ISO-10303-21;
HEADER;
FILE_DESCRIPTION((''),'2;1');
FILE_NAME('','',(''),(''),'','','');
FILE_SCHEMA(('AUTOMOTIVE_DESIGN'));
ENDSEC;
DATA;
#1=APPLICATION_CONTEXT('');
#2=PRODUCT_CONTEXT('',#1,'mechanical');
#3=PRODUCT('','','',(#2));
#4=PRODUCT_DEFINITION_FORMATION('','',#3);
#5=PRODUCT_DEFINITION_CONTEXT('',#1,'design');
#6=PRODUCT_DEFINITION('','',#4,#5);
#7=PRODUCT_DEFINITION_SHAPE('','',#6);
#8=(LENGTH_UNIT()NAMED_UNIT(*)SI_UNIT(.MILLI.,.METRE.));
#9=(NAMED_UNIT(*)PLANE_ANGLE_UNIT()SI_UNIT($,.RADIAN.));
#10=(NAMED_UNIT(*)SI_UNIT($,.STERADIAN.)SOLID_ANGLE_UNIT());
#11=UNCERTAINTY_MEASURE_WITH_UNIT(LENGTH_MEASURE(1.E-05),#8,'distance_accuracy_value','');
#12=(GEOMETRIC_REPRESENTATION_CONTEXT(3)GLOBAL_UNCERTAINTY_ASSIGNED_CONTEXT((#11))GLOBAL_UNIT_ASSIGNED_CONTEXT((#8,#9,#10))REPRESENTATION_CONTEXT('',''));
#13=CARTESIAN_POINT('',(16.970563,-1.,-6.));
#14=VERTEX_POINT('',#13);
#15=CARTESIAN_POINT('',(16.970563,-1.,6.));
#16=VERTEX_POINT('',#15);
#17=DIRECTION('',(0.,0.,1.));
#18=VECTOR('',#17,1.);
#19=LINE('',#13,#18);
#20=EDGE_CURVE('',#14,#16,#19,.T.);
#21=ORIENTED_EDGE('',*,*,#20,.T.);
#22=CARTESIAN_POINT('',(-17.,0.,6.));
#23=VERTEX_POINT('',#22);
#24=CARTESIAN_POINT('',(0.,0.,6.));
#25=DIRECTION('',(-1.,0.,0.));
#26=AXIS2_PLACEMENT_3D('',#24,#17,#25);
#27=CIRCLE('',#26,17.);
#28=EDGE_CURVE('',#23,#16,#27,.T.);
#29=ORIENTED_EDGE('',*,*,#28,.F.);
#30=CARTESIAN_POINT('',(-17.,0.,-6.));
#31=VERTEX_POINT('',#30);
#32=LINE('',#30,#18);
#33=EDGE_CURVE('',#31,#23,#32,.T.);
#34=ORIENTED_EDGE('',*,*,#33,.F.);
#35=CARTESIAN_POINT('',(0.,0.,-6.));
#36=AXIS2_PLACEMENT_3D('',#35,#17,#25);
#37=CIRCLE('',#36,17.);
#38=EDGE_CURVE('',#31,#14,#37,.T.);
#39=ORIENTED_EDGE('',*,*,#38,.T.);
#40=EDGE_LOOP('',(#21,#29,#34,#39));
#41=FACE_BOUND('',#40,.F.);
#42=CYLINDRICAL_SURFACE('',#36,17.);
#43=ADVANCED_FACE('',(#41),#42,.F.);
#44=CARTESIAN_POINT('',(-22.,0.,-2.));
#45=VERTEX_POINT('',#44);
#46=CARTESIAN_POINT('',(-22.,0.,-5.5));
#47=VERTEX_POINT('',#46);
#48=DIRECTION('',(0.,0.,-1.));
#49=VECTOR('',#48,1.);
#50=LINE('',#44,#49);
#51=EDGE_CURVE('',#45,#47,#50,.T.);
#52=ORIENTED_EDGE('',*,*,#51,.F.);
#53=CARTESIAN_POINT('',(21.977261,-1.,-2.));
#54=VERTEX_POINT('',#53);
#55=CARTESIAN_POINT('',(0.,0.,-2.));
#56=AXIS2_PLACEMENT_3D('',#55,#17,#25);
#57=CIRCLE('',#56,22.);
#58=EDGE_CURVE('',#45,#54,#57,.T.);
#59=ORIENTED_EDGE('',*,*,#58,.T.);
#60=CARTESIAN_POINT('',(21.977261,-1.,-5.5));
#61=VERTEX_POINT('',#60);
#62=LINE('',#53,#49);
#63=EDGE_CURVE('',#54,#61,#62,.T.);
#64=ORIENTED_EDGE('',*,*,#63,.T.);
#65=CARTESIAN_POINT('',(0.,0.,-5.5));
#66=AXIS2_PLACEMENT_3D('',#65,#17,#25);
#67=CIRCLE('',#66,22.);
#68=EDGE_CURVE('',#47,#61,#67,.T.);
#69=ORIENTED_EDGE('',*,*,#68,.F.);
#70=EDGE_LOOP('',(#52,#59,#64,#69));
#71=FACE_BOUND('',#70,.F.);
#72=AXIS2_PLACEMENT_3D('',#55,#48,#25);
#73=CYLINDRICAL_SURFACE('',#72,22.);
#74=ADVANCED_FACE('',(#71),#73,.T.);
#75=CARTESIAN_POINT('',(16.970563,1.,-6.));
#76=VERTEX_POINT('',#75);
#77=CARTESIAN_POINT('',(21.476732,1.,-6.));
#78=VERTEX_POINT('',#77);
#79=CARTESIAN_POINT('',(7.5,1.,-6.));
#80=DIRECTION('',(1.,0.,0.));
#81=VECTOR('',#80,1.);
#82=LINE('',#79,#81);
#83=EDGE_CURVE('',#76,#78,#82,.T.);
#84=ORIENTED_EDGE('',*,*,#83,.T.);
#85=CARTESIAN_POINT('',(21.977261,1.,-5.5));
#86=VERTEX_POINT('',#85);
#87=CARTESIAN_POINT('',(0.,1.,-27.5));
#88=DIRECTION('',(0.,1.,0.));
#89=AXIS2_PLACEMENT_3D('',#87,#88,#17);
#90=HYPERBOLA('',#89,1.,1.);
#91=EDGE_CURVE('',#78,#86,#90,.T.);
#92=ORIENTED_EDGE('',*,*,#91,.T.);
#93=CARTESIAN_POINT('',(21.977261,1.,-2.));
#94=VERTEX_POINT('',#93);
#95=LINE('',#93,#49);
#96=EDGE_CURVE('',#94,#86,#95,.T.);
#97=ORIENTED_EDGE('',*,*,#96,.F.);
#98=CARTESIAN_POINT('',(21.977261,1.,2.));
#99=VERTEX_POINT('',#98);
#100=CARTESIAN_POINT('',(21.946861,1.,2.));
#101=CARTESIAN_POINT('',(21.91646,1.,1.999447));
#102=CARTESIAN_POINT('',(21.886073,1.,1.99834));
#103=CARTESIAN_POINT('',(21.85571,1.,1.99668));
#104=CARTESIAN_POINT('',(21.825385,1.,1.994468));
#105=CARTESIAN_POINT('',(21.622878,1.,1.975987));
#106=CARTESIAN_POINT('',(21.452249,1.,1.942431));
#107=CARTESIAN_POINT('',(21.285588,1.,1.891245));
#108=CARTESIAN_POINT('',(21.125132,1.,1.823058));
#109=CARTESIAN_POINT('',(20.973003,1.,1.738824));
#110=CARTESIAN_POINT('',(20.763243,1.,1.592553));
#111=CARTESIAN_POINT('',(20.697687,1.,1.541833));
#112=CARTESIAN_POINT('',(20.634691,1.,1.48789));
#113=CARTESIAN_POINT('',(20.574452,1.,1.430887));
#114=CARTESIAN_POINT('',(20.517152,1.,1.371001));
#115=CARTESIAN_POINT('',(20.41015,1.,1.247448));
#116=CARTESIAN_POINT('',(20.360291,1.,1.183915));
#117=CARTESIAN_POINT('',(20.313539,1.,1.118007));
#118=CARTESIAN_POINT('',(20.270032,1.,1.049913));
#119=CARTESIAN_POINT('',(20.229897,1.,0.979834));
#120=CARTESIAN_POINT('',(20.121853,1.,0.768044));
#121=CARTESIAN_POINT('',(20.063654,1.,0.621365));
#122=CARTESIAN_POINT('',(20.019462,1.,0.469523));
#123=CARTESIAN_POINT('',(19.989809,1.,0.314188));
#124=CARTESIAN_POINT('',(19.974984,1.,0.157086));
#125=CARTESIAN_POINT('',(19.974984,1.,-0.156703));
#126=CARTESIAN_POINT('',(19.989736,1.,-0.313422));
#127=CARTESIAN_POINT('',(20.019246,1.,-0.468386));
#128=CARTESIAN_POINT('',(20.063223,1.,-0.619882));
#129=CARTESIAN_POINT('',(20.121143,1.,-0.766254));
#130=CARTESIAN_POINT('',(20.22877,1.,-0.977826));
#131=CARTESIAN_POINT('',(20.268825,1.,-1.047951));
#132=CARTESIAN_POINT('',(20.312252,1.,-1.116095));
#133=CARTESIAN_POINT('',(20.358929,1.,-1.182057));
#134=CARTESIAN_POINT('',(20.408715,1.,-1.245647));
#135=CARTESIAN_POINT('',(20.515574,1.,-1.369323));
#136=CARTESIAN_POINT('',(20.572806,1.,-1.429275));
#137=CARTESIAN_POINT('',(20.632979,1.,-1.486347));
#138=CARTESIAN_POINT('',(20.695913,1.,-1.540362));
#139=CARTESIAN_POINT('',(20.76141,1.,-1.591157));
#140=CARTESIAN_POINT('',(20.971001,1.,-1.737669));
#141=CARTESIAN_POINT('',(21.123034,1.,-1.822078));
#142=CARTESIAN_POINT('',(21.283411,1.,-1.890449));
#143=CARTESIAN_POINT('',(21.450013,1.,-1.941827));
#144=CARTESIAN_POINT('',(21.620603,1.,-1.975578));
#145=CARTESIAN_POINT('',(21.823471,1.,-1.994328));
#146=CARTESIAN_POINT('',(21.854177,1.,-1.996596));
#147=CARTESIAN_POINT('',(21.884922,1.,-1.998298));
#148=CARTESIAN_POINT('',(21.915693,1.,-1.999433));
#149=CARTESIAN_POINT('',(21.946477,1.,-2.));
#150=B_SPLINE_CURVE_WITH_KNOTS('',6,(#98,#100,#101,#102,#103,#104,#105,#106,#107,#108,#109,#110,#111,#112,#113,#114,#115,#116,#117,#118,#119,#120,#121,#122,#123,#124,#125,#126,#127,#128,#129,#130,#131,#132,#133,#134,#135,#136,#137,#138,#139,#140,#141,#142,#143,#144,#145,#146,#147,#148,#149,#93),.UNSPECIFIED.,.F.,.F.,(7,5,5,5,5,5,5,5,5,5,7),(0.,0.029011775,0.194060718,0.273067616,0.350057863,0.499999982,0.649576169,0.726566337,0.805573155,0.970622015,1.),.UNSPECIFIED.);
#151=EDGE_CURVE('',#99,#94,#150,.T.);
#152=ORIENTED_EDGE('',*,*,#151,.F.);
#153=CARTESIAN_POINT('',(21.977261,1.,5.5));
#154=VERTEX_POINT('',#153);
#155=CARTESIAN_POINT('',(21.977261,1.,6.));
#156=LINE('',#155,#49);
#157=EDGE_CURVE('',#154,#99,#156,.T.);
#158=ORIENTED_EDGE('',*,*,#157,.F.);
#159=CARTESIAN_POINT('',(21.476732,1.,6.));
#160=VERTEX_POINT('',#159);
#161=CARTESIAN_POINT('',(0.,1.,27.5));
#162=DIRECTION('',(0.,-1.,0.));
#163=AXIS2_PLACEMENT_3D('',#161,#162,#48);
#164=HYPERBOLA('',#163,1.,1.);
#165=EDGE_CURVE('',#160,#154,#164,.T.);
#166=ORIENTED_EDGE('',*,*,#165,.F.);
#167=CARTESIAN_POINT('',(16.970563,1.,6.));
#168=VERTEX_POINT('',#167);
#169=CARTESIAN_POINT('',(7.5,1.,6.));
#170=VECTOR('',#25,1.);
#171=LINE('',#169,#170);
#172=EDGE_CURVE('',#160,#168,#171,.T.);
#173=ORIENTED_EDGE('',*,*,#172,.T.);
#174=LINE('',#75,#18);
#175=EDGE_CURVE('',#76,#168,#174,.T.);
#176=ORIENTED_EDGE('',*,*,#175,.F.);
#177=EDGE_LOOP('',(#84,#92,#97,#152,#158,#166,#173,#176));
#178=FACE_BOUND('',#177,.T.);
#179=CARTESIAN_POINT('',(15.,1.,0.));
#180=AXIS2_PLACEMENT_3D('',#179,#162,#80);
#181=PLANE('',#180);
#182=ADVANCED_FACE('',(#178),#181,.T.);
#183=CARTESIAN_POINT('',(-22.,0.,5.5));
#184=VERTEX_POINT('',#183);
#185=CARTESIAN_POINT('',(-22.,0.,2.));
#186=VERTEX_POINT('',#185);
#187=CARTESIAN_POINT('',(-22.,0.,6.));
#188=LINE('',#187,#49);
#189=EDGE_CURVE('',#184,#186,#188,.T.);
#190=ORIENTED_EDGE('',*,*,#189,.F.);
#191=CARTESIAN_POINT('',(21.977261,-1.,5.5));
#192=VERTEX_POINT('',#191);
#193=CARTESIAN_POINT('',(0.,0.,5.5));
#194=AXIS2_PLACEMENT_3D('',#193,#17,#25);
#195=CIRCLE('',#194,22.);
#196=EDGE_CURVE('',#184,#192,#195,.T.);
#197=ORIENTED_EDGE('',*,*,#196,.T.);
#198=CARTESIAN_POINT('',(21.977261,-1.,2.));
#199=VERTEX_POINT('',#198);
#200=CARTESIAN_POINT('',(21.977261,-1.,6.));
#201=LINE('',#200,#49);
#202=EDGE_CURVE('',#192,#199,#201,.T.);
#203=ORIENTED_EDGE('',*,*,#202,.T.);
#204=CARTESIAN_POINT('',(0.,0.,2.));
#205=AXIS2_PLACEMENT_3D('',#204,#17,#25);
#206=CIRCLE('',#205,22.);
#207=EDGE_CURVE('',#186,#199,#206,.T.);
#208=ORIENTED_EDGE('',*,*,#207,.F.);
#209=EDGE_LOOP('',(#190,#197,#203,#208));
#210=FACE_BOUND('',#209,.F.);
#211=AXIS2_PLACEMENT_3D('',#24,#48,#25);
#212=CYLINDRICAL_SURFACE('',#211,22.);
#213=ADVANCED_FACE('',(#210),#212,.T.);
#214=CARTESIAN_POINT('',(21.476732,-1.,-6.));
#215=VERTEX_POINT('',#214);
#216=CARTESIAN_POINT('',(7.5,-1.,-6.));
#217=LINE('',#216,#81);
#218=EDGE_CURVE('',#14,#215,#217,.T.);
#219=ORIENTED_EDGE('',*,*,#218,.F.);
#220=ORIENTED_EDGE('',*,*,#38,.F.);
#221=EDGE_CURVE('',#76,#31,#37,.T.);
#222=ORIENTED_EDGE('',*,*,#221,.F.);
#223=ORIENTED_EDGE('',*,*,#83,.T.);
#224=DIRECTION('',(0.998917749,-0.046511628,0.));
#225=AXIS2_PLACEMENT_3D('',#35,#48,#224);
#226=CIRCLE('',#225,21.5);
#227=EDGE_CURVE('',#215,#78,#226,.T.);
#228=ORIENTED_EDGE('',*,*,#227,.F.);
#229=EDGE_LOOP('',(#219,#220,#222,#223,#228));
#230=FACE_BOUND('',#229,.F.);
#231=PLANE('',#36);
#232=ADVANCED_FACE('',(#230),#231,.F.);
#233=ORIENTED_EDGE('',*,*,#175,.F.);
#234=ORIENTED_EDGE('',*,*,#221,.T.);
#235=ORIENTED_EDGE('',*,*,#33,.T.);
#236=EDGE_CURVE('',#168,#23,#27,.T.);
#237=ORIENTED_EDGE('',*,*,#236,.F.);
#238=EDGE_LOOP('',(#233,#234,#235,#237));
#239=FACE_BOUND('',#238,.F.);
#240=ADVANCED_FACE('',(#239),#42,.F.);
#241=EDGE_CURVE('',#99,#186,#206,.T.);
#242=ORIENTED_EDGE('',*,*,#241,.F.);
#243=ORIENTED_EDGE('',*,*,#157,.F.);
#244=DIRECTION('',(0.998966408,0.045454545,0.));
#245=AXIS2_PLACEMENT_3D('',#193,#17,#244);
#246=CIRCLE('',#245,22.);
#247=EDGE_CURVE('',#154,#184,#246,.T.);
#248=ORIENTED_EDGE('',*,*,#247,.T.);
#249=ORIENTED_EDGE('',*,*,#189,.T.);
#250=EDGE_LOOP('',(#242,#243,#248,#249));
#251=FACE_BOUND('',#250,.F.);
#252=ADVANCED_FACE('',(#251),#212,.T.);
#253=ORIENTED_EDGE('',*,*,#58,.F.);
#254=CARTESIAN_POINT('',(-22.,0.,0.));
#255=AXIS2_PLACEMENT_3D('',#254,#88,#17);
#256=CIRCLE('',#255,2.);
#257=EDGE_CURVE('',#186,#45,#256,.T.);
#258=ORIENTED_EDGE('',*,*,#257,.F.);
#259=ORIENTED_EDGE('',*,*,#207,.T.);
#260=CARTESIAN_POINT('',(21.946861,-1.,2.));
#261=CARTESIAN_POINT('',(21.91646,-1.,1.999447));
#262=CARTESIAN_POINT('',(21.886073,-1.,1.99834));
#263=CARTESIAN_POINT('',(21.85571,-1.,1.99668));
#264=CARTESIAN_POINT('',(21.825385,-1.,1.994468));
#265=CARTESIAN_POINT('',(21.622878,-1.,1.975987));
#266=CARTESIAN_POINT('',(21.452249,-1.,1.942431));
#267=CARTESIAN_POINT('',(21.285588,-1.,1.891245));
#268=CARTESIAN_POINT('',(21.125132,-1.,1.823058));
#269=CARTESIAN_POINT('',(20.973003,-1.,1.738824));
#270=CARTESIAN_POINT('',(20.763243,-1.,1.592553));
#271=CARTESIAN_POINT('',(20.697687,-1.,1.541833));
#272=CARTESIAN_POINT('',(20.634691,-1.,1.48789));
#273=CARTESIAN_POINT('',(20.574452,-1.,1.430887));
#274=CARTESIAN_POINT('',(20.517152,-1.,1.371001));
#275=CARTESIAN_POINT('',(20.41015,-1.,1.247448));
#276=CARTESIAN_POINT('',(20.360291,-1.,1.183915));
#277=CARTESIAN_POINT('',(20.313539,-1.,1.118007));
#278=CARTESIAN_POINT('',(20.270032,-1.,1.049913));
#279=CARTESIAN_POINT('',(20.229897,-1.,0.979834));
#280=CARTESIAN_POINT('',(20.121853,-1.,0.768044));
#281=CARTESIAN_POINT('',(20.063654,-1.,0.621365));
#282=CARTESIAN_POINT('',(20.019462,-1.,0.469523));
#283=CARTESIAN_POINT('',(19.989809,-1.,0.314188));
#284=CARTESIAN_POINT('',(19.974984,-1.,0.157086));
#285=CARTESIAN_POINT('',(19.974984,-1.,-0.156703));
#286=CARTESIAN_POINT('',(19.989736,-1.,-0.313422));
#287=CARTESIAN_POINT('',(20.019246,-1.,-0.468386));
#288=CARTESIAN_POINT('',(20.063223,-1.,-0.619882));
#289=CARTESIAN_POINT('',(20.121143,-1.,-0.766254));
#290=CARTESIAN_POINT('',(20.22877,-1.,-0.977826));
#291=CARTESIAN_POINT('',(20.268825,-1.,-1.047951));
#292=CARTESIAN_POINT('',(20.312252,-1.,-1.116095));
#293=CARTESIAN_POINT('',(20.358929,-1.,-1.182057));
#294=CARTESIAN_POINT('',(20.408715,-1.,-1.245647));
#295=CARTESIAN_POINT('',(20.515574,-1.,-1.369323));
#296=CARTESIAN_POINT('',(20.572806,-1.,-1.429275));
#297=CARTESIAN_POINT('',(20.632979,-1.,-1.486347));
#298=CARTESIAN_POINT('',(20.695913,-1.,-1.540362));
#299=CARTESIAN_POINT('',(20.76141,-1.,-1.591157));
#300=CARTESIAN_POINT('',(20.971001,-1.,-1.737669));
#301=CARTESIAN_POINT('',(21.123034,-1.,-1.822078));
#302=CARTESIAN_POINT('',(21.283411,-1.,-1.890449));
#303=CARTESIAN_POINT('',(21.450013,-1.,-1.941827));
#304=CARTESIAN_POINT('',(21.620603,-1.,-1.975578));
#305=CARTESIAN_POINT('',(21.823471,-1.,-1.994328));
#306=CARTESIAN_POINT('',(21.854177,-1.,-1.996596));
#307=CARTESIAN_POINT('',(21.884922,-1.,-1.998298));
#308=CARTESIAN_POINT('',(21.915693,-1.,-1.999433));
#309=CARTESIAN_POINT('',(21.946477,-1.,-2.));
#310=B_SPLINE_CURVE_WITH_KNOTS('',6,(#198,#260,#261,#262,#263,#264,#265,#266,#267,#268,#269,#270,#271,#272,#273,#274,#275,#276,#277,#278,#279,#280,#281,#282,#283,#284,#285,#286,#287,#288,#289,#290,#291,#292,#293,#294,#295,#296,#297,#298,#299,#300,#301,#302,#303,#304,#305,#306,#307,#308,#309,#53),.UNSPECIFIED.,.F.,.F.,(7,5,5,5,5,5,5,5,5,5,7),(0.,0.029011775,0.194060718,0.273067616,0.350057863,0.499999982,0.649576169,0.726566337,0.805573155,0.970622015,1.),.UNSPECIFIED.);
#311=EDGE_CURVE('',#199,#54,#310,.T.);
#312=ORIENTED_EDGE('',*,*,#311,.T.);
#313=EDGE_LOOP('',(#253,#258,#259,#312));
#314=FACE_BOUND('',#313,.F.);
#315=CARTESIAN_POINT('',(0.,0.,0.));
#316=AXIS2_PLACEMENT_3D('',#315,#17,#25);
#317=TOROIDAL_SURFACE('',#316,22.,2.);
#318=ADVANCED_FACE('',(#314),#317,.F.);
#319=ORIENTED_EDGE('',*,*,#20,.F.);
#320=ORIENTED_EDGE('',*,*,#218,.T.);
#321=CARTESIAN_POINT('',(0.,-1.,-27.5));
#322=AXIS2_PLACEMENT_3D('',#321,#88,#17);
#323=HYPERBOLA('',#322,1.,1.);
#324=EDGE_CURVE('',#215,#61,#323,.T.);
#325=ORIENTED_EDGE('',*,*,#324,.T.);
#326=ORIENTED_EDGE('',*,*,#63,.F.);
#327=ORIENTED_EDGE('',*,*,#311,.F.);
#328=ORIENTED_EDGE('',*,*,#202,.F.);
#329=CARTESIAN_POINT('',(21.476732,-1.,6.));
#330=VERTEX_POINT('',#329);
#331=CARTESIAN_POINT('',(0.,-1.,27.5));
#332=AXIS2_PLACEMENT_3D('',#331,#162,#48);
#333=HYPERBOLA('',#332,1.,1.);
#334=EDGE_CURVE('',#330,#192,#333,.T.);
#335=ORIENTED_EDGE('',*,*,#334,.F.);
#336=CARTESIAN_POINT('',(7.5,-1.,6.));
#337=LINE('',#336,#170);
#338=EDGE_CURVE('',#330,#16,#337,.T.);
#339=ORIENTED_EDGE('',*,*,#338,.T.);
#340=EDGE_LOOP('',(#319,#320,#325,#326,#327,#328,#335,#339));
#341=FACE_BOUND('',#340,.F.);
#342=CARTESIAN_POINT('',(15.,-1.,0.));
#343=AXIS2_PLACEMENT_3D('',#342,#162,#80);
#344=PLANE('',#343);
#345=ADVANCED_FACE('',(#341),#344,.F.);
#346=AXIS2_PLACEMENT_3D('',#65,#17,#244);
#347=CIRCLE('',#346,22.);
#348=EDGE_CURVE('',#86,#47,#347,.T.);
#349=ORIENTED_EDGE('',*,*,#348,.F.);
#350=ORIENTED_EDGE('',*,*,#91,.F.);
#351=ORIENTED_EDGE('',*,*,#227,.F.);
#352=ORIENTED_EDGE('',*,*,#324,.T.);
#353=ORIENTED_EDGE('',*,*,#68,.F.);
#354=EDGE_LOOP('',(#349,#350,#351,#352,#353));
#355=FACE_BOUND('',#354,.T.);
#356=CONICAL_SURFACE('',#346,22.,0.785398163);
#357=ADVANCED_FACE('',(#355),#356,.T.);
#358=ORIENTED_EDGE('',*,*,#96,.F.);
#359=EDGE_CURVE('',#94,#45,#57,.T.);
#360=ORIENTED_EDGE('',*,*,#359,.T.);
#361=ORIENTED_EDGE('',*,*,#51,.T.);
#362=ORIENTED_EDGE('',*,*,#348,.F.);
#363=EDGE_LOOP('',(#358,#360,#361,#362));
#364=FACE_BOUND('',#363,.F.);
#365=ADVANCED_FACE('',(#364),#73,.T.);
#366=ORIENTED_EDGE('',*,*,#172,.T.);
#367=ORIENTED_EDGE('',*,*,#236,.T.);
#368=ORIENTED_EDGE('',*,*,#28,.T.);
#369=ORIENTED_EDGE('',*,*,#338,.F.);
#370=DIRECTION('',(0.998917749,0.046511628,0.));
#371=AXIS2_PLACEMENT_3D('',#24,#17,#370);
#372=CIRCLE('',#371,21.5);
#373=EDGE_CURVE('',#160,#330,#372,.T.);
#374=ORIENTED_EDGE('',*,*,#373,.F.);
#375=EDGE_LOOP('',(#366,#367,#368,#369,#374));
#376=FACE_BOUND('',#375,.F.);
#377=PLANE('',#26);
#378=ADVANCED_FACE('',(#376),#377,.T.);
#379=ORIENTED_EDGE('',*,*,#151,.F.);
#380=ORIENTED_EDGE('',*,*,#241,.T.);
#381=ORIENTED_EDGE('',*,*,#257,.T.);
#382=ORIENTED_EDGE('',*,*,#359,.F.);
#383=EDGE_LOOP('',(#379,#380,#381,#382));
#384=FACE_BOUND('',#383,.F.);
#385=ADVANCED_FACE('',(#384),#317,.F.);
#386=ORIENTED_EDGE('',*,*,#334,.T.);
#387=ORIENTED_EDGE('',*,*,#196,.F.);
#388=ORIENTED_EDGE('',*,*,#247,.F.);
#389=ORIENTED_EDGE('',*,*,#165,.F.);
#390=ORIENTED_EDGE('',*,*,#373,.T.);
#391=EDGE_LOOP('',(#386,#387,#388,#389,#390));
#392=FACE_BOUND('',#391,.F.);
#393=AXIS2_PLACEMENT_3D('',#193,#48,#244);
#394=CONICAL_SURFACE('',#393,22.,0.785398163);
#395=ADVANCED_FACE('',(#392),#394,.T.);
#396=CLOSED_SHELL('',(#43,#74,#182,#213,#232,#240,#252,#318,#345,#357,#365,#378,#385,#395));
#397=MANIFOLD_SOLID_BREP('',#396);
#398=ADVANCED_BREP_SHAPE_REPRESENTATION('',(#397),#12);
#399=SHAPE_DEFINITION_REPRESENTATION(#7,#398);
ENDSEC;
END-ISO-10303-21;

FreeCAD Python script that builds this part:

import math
import FreeCAD as App
import Part
import Sketcher


def edges_at(feature, points):
    """Names of the edges that pass closest to the given points."""
    edges = feature.Shape.Edges
    near = lambda p: min(range(len(edges)), key=lambda i: edges[i].distToShape(Part.Vertex(*p))[0])
    return sorted({f"Edge{near(p) + 1}" for p in points})


def add_polygon(sketch, points):
    """Adds a closed chain of lines whose ends are joined by coincident constraints."""
    first, n = sketch.GeometryCount, len(points)
    for a, b in zip(points, points[1:] + points[:1]):
        sketch.addGeometry(Part.LineSegment(App.Vector(*a, 0), App.Vector(*b, 0)), False)
    for i in range(n):
        sketch.addConstraint(Sketcher.Constraint("Coincident", first + i, 2, first + (i + 1) % n, 1))

doc = App.newDocument("Part")
params = doc.addObject("Spreadsheet::Sheet", "Params")
for row, (alias, value) in enumerate([
    ("sketch1_radius", "2 mm"),
    ("sketch1_width", "5 mm"),
    ("sketch1_height", "12 mm"),
    ("revolution_angle", "360 deg"),
    ("sketch2_width", "10 mm"),
    ("sketch2_height", "2 mm"),
    ("pocket1_length", "25 mm"),
    ("chamfer_size", "0.5 mm"),
], start=1):
    params.set(f"A{row}", alias)
    params.set(f"B{row}", "=" + value)
    params.setAlias(f"B{row}", alias)

body = doc.addObject("PartDesign::Body", "Body")

# Sketch on XZ plane
sketch1 = body.newObject("Sketcher::SketchObject", "Sketch")
sketch1.AttachmentSupport = (doc.getObject("XZ_Plane"), [""])
sketch1.MapMode = "FlatFace"
sketch1.addGeometry(Part.LineSegment(App.Vector(-17, -6, 0), App.Vector(-17, 6, 0)), False)
sketch1.addGeometry(Part.LineSegment(App.Vector(-17, 6, 0), App.Vector(-22, 6, 0)), False)
sketch1.addGeometry(Part.LineSegment(App.Vector(-22, 6, 0), App.Vector(-22, 2, 0)), False)
sketch1.addGeometry(Part.ArcOfCircle(Part.Circle(App.Vector(-22, 0, 0), App.Vector(0, 0, 1), 2), math.radians(-90), math.radians(90)), False)
sketch1.addGeometry(Part.LineSegment(App.Vector(-22, -2, 0), App.Vector(-22, -6, 0)), False)
sketch1.addGeometry(Part.LineSegment(App.Vector(-22, -6, 0), App.Vector(-17, -6, 0)), False)
sketch1.addConstraint(Sketcher.Constraint("Coincident", 0, 2, 1, 1))
sketch1.addConstraint(Sketcher.Constraint("Coincident", 1, 2, 2, 1))
sketch1.addConstraint(Sketcher.Constraint("Coincident", 2, 2, 3, 2))
sketch1.addConstraint(Sketcher.Constraint("Coincident", 3, 1, 4, 1))
sketch1.addConstraint(Sketcher.Constraint("Coincident", 4, 2, 5, 1))
sketch1.addConstraint(Sketcher.Constraint("Coincident", 5, 2, 0, 1))
sketch1.addConstraint(Sketcher.Constraint("Vertical", 0))
sketch1.addConstraint(Sketcher.Constraint("Horizontal", 1))
sketch1.addConstraint(Sketcher.Constraint("Vertical", 2))
sketch1.addConstraint(Sketcher.Constraint("Vertical", 4))
sketch1.addConstraint(Sketcher.Constraint("Horizontal", 5))
sketch1.addConstraint(Sketcher.Constraint("Symmetric", 2, 2, 3, 1, -1))
sketch1.addConstraint(Sketcher.Constraint("Vertical", 3, 3, 1, 2))
sketch1.addConstraint(Sketcher.Constraint("Equal", 2, 4))
sketch1.addConstraint(Sketcher.Constraint("Radius", 3, 2.0))
sketch1.addConstraint(Sketcher.Constraint("DistanceX", 1, 2, 1, 1, 5.0))
sketch1.addConstraint(Sketcher.Constraint("DistanceY", 0, 1, 0, 2, 12.0))
sketch1.addConstraint(Sketcher.Constraint("DistanceX", 3, 3, -1, 1, 22.0))
sketch1.setExpression("Constraints[14]", "Params.sketch1_radius")
sketch1.setExpression("Constraints[15]", "Params.sketch1_width")
sketch1.setExpression("Constraints[16]", "Params.sketch1_height")
revolution = body.newObject("PartDesign::Revolution", "Revolution")
revolution.Profile = sketch1
revolution.ReferenceAxis = (sketch1, ["V_Axis"])
revolution.setExpression("Angle", "Params.revolution_angle")

# Sketch on XY plane
sketch2 = body.newObject("Sketcher::SketchObject", "Sketch001")
sketch2.AttachmentSupport = (doc.getObject("XY_Plane"), [""])
sketch2.MapMode = "FlatFace"
add_polygon(sketch2, [(15, 1), (15, -1), (25, -1), (25, 1)])  # lines 0-3
sketch2.addConstraint(Sketcher.Constraint("Vertical", 0))
sketch2.addConstraint(Sketcher.Constraint("Horizontal", 1))
sketch2.addConstraint(Sketcher.Constraint("Vertical", 2))
sketch2.addConstraint(Sketcher.Constraint("Horizontal", 3))
sketch2.addConstraint(Sketcher.Constraint("DistanceX", 1, 1, 1, 2, 10.0))
sketch2.addConstraint(Sketcher.Constraint("DistanceY", 0, 2, 0, 1, 2.0))
sketch2.addConstraint(Sketcher.Constraint("DistanceX", -1, 1, 0, 2, 15.0))
sketch2.addConstraint(Sketcher.Constraint("DistanceY", 0, 2, -1, 1, 1.0))
sketch2.setExpression("Constraints[8]", "Params.sketch2_width")
sketch2.setExpression("Constraints[9]", "Params.sketch2_height")
pocket1 = body.newObject("PartDesign::Pocket", "Pocket")
pocket1.Profile = sketch2
pocket1.setExpression("Length", "Params.pocket1_length")
pocket1.Midplane = True
doc.recompute()

chamfer = body.newObject("PartDesign::Chamfer", "Chamfer")
chamfer.Base = (pocket1, edges_at(pocket1, [(-0.5, -21.994, -6), (-0.5, -21.994, 6)]))
chamfer.setExpression("Size", "Params.chamfer_size")

doc.recompute()
